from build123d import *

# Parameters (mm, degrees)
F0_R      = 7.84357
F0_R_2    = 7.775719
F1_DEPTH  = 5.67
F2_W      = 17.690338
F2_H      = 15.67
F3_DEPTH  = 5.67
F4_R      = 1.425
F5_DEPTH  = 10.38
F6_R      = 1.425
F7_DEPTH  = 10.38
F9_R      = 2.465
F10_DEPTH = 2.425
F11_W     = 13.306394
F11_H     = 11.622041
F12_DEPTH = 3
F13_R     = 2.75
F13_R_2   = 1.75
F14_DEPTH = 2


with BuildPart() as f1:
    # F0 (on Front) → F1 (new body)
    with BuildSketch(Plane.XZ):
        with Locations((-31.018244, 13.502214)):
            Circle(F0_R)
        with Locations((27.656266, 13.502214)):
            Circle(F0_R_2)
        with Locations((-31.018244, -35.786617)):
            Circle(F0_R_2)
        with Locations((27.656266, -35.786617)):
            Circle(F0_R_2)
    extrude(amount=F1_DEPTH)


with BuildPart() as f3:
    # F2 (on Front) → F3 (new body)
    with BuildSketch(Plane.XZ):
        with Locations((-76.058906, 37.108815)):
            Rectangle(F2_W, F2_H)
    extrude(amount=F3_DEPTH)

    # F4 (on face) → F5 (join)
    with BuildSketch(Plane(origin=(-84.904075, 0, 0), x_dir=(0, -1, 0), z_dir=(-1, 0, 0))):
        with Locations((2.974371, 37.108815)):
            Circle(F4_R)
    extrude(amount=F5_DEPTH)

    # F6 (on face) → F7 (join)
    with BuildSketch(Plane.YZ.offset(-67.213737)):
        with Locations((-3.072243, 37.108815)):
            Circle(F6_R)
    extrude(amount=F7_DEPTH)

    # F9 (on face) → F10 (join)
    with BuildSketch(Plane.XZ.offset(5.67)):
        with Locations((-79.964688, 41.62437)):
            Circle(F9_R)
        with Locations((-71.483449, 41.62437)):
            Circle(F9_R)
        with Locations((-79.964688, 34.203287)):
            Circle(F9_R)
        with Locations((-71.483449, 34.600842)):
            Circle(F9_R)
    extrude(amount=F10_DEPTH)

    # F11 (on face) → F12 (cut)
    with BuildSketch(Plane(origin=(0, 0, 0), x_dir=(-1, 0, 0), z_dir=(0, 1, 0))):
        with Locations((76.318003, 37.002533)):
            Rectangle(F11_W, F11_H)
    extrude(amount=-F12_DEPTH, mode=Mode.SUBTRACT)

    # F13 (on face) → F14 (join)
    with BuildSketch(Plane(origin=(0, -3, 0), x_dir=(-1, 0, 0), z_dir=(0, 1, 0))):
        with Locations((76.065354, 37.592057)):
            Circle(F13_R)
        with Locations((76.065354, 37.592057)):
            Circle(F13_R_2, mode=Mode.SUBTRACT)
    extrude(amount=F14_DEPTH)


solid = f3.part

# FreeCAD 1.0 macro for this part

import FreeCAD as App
import Part
import Sketcher
from FreeCAD import Vector
Q = App.Units.Quantity


def add_polygon(sketch, points):
    """Adds a closed chain of lines whose ends are joined by coincident constraints."""
    first, n = sketch.GeometryCount, len(points)
    for a, b in zip(points, points[1:] + points[:1]):
        sketch.addGeometry(Part.LineSegment(App.Vector(*a, 0), App.Vector(*b, 0)), False)
    for i in range(n):
        sketch.addConstraint(Sketcher.Constraint("Coincident", first + i, 2, first + (i + 1) % n, 1))

doc = App.newDocument("Part")
body = doc.addObject("PartDesign::Body", "Body")
body.AllowCompound = True

sketch1 = body.newObject("Sketcher::SketchObject", "Sketch")
sketch1.AttachmentSupport = (doc.getObject("XZ_Plane"), [""])
sketch1.MapMode = "FlatFace"
sketch1.addGeometry([
    Part.Circle(Vector(-31.018244, 13.502214, 0), Vector(0, 0, 1), 7.84357),
    Part.Circle(Vector(27.656266, 13.502214, 0), Vector(0, 0, 1), 7.775719),
    Part.Circle(Vector(-31.018244, -35.786617, 0), Vector(0, 0, 1), 7.775719),
    Part.Circle(Vector(27.656266, -35.786617, 0), Vector(0, 0, 1), 7.775719),
], False)
sketch1.addConstraint([
    Sketcher.Constraint("Equal", 1, 2),
    Sketcher.Constraint("Equal", 2, 3),
    Sketcher.Constraint("Horizontal", 0, 3, 1, 3),
    Sketcher.Constraint("Horizontal", 2, 3, 3, 3),
    Sketcher.Constraint("Vertical", 0, 3, 2, 3),
    Sketcher.Constraint("Vertical", 1, 3, 3, 3),
    Sketcher.Constraint("Diameter", 0, Q("15.68714 mm")),
    Sketcher.Constraint("Diameter", 1, Q("15.551438 mm")),
    Sketcher.Constraint("DistanceX", 0, 3, 1, 3, Q("58.67451 mm")),
    Sketcher.Constraint("DistanceY", 2, 3, 0, 3, Q("49.288831 mm")),
    Sketcher.Constraint("DistanceX", 0, 3, -1, 1, Q("31.018244 mm")),
    Sketcher.Constraint("DistanceY", -1, 1, 0, 3, Q("13.502214 mm")),
])
pad1 = body.newObject("PartDesign::Pad", "Pad")
pad1.Profile = sketch1
pad1.Length = 5.67
body2 = doc.addObject("PartDesign::Body", "Body001")

sketch2 = body2.newObject("Sketcher::SketchObject", "Sketch001")
sketch2.AttachmentSupport = (doc.getObject("XZ_Plane001"), [""])
sketch2.MapMode = "FlatFace"
add_polygon(sketch2, [(-84.904075, 44.943815), (-84.904075, 29.273815), (-67.213737, 29.273815), (-67.213737, 44.943815)])
sketch2.addConstraint([
    Sketcher.Constraint("Vertical", 0),
    Sketcher.Constraint("Horizontal", 1),
    Sketcher.Constraint("Vertical", 2),
    Sketcher.Constraint("Horizontal", 3),
    Sketcher.Constraint("DistanceY", 0, 2, 0, 1, Q("15.67 mm")),
    Sketcher.Constraint("DistanceX", 1, 1, 1, 2, Q("17.690338 mm")),
    Sketcher.Constraint("DistanceX", 0, 2, -1, 1, Q("84.904075 mm")),
    Sketcher.Constraint("DistanceY", -1, 1, 0, 2, Q("29.273815 mm")),
])
pad2 = body2.newObject("PartDesign::Pad", "Pad001")
pad2.Profile = sketch2
pad2.Length = 5.67

sketch3 = body2.newObject("Sketcher::SketchObject", "Sketch002")
sketch3.AttachmentSupport = (doc.getObject("YZ_Plane001"), [""])
sketch3.MapMode = "FlatFace"
sketch3.AttachmentOffset = App.Placement(Vector(0, 0, -84.904075), App.Rotation())
sketch3.addGeometry(Part.Circle(Vector(-2.974371, 37.108815, 0), Vector(0, 0, 1), 1.425), False)
sketch3.addConstraint([
    Sketcher.Constraint("Diameter", 0, Q("2.85 mm")),
    Sketcher.Constraint("DistanceX", 0, 3, -1, 1, Q("2.974371 mm")),
    Sketcher.Constraint("DistanceY", -1, 1, 0, 3, Q("37.108815 mm")),
])
pad3 = body2.newObject("PartDesign::Pad", "Pad002")
pad3.Profile = sketch3
pad3.Length = 10.38
pad3.Reversed = True

sketch4 = body2.newObject("Sketcher::SketchObject", "Sketch003")
sketch4.AttachmentSupport = (doc.getObject("YZ_Plane001"), [""])
sketch4.MapMode = "FlatFace"
sketch4.AttachmentOffset = App.Placement(Vector(0, 0, -67.213737), App.Rotation())
sketch4.addGeometry(Part.Circle(Vector(-3.072243, 37.108815, 0), Vector(0, 0, 1), 1.425), False)
sketch4.addConstraint([
    Sketcher.Constraint("Diameter", 0, Q("2.85 mm")),
    Sketcher.Constraint("DistanceX", 0, 3, -1, 1, Q("3.072243 mm")),
    Sketcher.Constraint("DistanceY", -1, 1, 0, 3, Q("37.108815 mm")),
])
pad4 = body2.newObject("PartDesign::Pad", "Pad003")
pad4.Profile = sketch4
pad4.Length = 10.38

sketch5 = body2.newObject("Sketcher::SketchObject", "Sketch004")
sketch5.AttachmentSupport = (doc.getObject("XZ_Plane001"), [""])
sketch5.MapMode = "FlatFace"
sketch5.AttachmentOffset = App.Placement(Vector(0, 0, 5.67), App.Rotation())
sketch5.addGeometry([
    Part.Circle(Vector(-79.964688, 41.62437, 0), Vector(0, 0, 1), 2.465),
    Part.Circle(Vector(-71.483449, 41.62437, 0), Vector(0, 0, 1), 2.465),
    Part.Circle(Vector(-79.964688, 34.203287, 0), Vector(0, 0, 1), 2.465),
    Part.Circle(Vector(-71.483449, 34.600842, 0), Vector(0, 0, 1), 2.465),
], False)
sketch5.addConstraint([
    Sketcher.Constraint("Equal", 0, 1),
    Sketcher.Constraint("Equal", 1, 2),
    Sketcher.Constraint("Equal", 2, 3),
    Sketcher.Constraint("Horizontal", 0, 3, 1, 3),
    Sketcher.Constraint("Vertical", 0, 3, 2, 3),
    Sketcher.Constraint("Vertical", 1, 3, 3, 3),
    Sketcher.Constraint("Diameter", 0, Q("4.93 mm")),
    Sketcher.Constraint("DistanceY", -1, 1, 0, 3, Q("41.62437 mm")),
    Sketcher.Constraint("DistanceX", 1, 3, -1, 1, Q("71.483449 mm")),
    Sketcher.Constraint("DistanceX", 0, 3, 1, 3, Q("8.481239 mm")),
    Sketcher.Constraint("DistanceY", -1, 1, 2, 3, Q("34.203287 mm")),
    Sketcher.Constraint("DistanceY", -1, 1, 3, 3, Q("34.600842 mm")),
])
pad5 = body2.newObject("PartDesign::Pad", "Pad004")
pad5.Profile = sketch5
pad5.Length = 2.425

sketch6 = body2.newObject("Sketcher::SketchObject", "Sketch005")
sketch6.AttachmentSupport = (doc.getObject("XZ_Plane001"), [""])
sketch6.MapMode = "FlatFace"
add_polygon(sketch6, [(-69.664806, 42.813553), (-69.664806, 31.191513), (-82.9712, 31.191513), (-82.9712, 42.813553)])
sketch6.addConstraint([
    Sketcher.Constraint("Vertical", 0),
    Sketcher.Constraint("Horizontal", 1),
    Sketcher.Constraint("Vertical", 2),
    Sketcher.Constraint("Horizontal", 3),
    Sketcher.Constraint("DistanceY", 0, 2, 0, 1, Q("11.622041 mm")),
    Sketcher.Constraint("DistanceX", 1, 2, -1, 1, Q("82.9712 mm")),
    Sketcher.Constraint("DistanceX", 1, 2, 1, 1, Q("13.306394 mm")),
    Sketcher.Constraint("DistanceY", -1, 1, 0, 2, Q("31.191513 mm")),
])
pocket1 = body2.newObject("PartDesign::Pocket", "Pocket")
pocket1.Profile = sketch6
pocket1.Length = 3
pocket1.Reversed = True

sketch7 = body2.newObject("Sketcher::SketchObject", "Sketch006")
sketch7.AttachmentSupport = (doc.getObject("XZ_Plane001"), [""])
sketch7.MapMode = "FlatFace"
sketch7.AttachmentOffset = App.Placement(Vector(0, 0, 3), App.Rotation())
sketch7.addGeometry([
    Part.Circle(Vector(-76.065354, 37.592057, 0), Vector(0, 0, 1), 2.75),
    Part.Circle(Vector(-76.065354, 37.592057, 0), Vector(0, 0, 1), 1.75),
], False)
sketch7.addConstraint([
    Sketcher.Constraint("Coincident", 1, 3, 0, 3),
    Sketcher.Constraint("Diameter", 0, Q("5.5 mm")),
    Sketcher.Constraint("Diameter", 1, Q("3.5 mm")),
    Sketcher.Constraint("DistanceX", 0, 3, -1, 1, Q("76.065354 mm")),
    Sketcher.Constraint("DistanceY", -1, 1, 0, 3, Q("37.592057 mm")),
])
pad6 = body2.newObject("PartDesign::Pad", "Pad005")
pad6.Profile = sketch7
pad6.Length = 2
pad6.Reversed = True
body.Visibility = False

doc.recompute()
